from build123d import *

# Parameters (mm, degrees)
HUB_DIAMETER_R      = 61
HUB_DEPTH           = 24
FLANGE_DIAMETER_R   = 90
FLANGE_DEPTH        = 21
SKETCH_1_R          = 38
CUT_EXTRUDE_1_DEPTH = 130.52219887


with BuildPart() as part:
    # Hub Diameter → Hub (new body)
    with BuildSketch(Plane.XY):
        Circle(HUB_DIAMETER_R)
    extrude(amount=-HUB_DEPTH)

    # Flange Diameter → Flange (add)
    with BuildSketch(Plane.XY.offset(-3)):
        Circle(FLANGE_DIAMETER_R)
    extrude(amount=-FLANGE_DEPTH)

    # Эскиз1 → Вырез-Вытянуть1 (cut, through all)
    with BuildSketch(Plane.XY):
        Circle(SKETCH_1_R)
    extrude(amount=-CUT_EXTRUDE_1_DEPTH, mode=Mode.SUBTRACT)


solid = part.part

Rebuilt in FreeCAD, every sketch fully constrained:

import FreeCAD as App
import Part
import Sketcher

V = App.Vector

doc = App.newDocument("Part")
params = doc.addObject("Spreadsheet::Sheet", "Params")
for row, (alias, value) in enumerate([
    ("sketch1_diameter", "122 mm"),
    ("pad1_length", "24 mm"),
    ("sketch2_diameter", "180 mm"),
    ("pad2_length", "21 mm"),
    ("sketch3_diameter", "76 mm"),
], start=1):
    params.set(f"A{row}", alias)
    params.set(f"B{row}", "=" + value)
    params.setAlias(f"B{row}", alias)

body = doc.addObject("PartDesign::Body", "Body")

# Sketch on XY plane
sketch1 = body.newObject("Sketcher::SketchObject", "Sketch")
sketch1.AttachmentSupport = (doc.getObject("XY_Plane"), [""])
sketch1.MapMode = "FlatFace"
sketch1.addGeometry(Part.Circle(V(0, 0, 0), V(0, 0, 1), 61), False)
sketch1.addConstraint([
    Sketcher.Constraint("Coincident", 0, 3, -1, 1),
    Sketcher.Constraint("Diameter", 0, 122.0),
])
sketch1.setExpression("Constraints[1]", "Params.sketch1_diameter")
pad1 = body.newObject("PartDesign::Pad", "Pad")
pad1.Profile = sketch1
pad1.setExpression("Length", "Params.pad1_length")
pad1.Reversed = True

# Sketch on XY plane
sketch2 = body.newObject("Sketcher::SketchObject", "Sketch001")
sketch2.AttachmentSupport = (doc.getObject("XY_Plane"), [""])
sketch2.MapMode = "FlatFace"
sketch2.AttachmentOffset = App.Placement(V(0, 0, -3), App.Rotation())
sketch2.addGeometry(Part.Circle(V(0, 0, 0), V(0, 0, 1), 90), False)
sketch2.addConstraint([
    Sketcher.Constraint("Coincident", 0, 3, -1, 1),
    Sketcher.Constraint("Diameter", 0, 180.0),
])
sketch2.setExpression("Constraints[1]", "Params.sketch2_diameter")
pad2 = body.newObject("PartDesign::Pad", "Pad001")
pad2.Profile = sketch2
pad2.setExpression("Length", "Params.pad2_length")
pad2.Reversed = True

# Sketch on XY plane
sketch3 = body.newObject("Sketcher::SketchObject", "Sketch002")
sketch3.AttachmentSupport = (doc.getObject("XY_Plane"), [""])
sketch3.MapMode = "FlatFace"
sketch3.addGeometry(Part.Circle(V(0, 0, 0), V(0, 0, 1), 38), False)
sketch3.addConstraint([
    Sketcher.Constraint("Coincident", 0, 3, -1, 1),
    Sketcher.Constraint("Diameter", 0, 76.0),
])
sketch3.setExpression("Constraints[1]", "Params.sketch3_diameter")
pocket1 = body.newObject("PartDesign::Pocket", "Pocket")
pocket1.Profile = sketch3
pocket1.Type = "ThroughAll"

doc.recompute()
